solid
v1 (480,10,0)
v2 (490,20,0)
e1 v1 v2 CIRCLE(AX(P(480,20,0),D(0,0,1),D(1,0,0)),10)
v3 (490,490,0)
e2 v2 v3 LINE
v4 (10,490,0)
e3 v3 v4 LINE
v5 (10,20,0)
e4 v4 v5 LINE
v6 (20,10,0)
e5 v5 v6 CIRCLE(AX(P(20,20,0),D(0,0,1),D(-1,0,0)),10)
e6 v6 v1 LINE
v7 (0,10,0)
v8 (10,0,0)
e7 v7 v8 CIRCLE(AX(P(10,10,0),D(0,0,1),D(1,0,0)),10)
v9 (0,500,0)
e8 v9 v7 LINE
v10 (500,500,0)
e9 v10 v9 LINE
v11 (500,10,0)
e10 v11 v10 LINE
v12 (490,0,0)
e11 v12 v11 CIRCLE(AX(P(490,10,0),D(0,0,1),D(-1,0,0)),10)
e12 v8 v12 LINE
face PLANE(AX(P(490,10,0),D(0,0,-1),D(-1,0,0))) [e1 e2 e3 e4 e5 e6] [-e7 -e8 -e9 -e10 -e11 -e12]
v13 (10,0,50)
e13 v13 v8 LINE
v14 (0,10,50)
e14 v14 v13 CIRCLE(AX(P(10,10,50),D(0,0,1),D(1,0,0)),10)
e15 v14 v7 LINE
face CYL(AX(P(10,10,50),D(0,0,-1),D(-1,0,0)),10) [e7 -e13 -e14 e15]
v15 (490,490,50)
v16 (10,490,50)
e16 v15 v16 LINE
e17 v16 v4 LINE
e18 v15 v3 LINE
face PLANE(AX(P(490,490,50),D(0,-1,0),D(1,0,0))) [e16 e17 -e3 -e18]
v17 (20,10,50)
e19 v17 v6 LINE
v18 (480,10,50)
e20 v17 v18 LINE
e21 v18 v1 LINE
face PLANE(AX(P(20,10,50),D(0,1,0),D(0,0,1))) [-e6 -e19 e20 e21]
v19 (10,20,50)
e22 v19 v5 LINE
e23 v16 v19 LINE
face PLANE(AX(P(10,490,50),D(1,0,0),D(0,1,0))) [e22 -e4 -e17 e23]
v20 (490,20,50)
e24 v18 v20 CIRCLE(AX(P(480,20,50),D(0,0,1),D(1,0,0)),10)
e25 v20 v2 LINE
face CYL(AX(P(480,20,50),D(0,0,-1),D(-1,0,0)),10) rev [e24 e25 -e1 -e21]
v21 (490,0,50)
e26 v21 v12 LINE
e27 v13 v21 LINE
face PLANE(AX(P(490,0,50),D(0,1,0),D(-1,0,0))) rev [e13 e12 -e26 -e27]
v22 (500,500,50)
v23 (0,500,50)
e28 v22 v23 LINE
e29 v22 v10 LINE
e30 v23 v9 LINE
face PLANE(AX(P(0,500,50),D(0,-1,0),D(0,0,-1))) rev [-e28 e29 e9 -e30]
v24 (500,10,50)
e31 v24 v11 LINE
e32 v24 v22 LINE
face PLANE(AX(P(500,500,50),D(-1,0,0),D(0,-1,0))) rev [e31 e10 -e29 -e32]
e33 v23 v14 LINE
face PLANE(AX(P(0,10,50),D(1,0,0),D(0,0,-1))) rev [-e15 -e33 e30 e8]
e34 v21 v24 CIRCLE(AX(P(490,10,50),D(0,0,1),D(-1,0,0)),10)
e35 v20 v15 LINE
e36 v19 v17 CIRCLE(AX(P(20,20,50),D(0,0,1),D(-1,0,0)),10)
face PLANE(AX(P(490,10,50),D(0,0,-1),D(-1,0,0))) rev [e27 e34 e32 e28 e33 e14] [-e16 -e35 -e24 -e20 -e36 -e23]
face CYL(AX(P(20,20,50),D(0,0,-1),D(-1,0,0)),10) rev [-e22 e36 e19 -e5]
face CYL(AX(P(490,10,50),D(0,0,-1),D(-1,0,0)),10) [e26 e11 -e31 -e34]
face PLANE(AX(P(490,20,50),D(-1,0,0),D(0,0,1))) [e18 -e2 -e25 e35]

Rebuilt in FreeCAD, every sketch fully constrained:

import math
import FreeCAD as App
import Part
import Sketcher

V = App.Vector
Q = App.Units.Quantity

doc = App.newDocument("Part")
body = doc.addObject("PartDesign::Body", "Body")

# Sketch on XY plane
sketch1 = body.newObject("Sketcher::SketchObject", "Sketch")
sketch1.AttachmentSupport = (doc.getObject("XY_Plane"), [""])
sketch1.MapMode = "FlatFace"
sketch1.addGeometry([
    Part.LineSegment(V(0, 500, 0), V(0, 10, 0)),  # 0
    Part.ArcOfCircle(Part.Circle(V(10, 10, 0), V(0, 0, 1), 10), math.radians(180), math.radians(270)),  # 1
    Part.LineSegment(V(10, 0, 0), V(490, 0, 0)),  # 2
    Part.ArcOfCircle(Part.Circle(V(490, 10, 0), V(0, 0, 1), 10), math.radians(-90), math.radians(0)),  # 3
    Part.LineSegment(V(500, 10, 0), V(500, 500, 0)),  # 4
    Part.LineSegment(V(500, 500, 0), V(0, 500, 0)),  # 5
    Part.LineSegment(V(10, 490, 0), V(490, 490, 0)),  # 6
    Part.LineSegment(V(490, 490, 0), V(490, 20, 0)),  # 7
    Part.ArcOfCircle(Part.Circle(V(480, 20, 0), V(0, 0, 1), 10), math.radians(-90), math.radians(0)),  # 8
    Part.LineSegment(V(480, 10, 0), V(20, 10, 0)),  # 9
    Part.ArcOfCircle(Part.Circle(V(20, 20, 0), V(0, 0, 1), 10), math.radians(180), math.radians(270)),  # 10
    Part.LineSegment(V(10, 20, 0), V(10, 490, 0)),  # 11
], False)
sketch1.addConstraint([
    Sketcher.Constraint("Tangent", 0, 2, 1, 1),
    Sketcher.Constraint("Tangent", 1, 2, 2, 1),
    Sketcher.Constraint("Tangent", 2, 2, 3, 1),
    Sketcher.Constraint("Tangent", 3, 2, 4, 1),
    Sketcher.Constraint("Coincident", 4, 2, 5, 1),
    Sketcher.Constraint("Coincident", 5, 2, 0, 1),
    Sketcher.Constraint("Coincident", 6, 2, 7, 1),
    Sketcher.Constraint("Tangent", 7, 2, 8, 2),
    Sketcher.Constraint("Tangent", 8, 1, 9, 1),
    Sketcher.Constraint("Tangent", 9, 2, 10, 2),
    Sketcher.Constraint("Tangent", 10, 1, 11, 1),
    Sketcher.Constraint("Coincident", 11, 2, 6, 1),
    Sketcher.Constraint("Vertical", 0),
    Sketcher.Constraint("Horizontal", 2),
    Sketcher.Constraint("Vertical", 4),
    Sketcher.Constraint("Horizontal", 5),
    Sketcher.Constraint("Horizontal", 6),
    Sketcher.Constraint("Vertical", 7),
    Sketcher.Constraint("Horizontal", 9),
    Sketcher.Constraint("Vertical", 11),
    Sketcher.Constraint("Equal", 1, 3),
    Sketcher.Constraint("Equal", 3, 8),
    Sketcher.Constraint("Equal", 8, 10),
    Sketcher.Constraint("PointOnObject", 0, 2, -2),
    Sketcher.Constraint("PointOnObject", 1, 2, -1),
    Sketcher.Constraint("Horizontal", 3, 2, 8, 1),
    Sketcher.Constraint("Vertical", 2, 2, 6, 2),
    Sketcher.Constraint("Vertical", 1, 2, 10, 1),
    Sketcher.Constraint("Radius", 1, Q("10 mm")),
    Sketcher.Constraint("DistanceX", 2, 1, 2, 2, Q("480 mm")),
    Sketcher.Constraint("DistanceY", 0, 2, 0, 1, Q("490 mm")),
    Sketcher.Constraint("DistanceY", 7, 2, 7, 1, Q("470 mm")),
])
pad1 = body.newObject("PartDesign::Pad", "Pad")
pad1.Profile = sketch1
pad1.Length = 50

doc.recompute()
